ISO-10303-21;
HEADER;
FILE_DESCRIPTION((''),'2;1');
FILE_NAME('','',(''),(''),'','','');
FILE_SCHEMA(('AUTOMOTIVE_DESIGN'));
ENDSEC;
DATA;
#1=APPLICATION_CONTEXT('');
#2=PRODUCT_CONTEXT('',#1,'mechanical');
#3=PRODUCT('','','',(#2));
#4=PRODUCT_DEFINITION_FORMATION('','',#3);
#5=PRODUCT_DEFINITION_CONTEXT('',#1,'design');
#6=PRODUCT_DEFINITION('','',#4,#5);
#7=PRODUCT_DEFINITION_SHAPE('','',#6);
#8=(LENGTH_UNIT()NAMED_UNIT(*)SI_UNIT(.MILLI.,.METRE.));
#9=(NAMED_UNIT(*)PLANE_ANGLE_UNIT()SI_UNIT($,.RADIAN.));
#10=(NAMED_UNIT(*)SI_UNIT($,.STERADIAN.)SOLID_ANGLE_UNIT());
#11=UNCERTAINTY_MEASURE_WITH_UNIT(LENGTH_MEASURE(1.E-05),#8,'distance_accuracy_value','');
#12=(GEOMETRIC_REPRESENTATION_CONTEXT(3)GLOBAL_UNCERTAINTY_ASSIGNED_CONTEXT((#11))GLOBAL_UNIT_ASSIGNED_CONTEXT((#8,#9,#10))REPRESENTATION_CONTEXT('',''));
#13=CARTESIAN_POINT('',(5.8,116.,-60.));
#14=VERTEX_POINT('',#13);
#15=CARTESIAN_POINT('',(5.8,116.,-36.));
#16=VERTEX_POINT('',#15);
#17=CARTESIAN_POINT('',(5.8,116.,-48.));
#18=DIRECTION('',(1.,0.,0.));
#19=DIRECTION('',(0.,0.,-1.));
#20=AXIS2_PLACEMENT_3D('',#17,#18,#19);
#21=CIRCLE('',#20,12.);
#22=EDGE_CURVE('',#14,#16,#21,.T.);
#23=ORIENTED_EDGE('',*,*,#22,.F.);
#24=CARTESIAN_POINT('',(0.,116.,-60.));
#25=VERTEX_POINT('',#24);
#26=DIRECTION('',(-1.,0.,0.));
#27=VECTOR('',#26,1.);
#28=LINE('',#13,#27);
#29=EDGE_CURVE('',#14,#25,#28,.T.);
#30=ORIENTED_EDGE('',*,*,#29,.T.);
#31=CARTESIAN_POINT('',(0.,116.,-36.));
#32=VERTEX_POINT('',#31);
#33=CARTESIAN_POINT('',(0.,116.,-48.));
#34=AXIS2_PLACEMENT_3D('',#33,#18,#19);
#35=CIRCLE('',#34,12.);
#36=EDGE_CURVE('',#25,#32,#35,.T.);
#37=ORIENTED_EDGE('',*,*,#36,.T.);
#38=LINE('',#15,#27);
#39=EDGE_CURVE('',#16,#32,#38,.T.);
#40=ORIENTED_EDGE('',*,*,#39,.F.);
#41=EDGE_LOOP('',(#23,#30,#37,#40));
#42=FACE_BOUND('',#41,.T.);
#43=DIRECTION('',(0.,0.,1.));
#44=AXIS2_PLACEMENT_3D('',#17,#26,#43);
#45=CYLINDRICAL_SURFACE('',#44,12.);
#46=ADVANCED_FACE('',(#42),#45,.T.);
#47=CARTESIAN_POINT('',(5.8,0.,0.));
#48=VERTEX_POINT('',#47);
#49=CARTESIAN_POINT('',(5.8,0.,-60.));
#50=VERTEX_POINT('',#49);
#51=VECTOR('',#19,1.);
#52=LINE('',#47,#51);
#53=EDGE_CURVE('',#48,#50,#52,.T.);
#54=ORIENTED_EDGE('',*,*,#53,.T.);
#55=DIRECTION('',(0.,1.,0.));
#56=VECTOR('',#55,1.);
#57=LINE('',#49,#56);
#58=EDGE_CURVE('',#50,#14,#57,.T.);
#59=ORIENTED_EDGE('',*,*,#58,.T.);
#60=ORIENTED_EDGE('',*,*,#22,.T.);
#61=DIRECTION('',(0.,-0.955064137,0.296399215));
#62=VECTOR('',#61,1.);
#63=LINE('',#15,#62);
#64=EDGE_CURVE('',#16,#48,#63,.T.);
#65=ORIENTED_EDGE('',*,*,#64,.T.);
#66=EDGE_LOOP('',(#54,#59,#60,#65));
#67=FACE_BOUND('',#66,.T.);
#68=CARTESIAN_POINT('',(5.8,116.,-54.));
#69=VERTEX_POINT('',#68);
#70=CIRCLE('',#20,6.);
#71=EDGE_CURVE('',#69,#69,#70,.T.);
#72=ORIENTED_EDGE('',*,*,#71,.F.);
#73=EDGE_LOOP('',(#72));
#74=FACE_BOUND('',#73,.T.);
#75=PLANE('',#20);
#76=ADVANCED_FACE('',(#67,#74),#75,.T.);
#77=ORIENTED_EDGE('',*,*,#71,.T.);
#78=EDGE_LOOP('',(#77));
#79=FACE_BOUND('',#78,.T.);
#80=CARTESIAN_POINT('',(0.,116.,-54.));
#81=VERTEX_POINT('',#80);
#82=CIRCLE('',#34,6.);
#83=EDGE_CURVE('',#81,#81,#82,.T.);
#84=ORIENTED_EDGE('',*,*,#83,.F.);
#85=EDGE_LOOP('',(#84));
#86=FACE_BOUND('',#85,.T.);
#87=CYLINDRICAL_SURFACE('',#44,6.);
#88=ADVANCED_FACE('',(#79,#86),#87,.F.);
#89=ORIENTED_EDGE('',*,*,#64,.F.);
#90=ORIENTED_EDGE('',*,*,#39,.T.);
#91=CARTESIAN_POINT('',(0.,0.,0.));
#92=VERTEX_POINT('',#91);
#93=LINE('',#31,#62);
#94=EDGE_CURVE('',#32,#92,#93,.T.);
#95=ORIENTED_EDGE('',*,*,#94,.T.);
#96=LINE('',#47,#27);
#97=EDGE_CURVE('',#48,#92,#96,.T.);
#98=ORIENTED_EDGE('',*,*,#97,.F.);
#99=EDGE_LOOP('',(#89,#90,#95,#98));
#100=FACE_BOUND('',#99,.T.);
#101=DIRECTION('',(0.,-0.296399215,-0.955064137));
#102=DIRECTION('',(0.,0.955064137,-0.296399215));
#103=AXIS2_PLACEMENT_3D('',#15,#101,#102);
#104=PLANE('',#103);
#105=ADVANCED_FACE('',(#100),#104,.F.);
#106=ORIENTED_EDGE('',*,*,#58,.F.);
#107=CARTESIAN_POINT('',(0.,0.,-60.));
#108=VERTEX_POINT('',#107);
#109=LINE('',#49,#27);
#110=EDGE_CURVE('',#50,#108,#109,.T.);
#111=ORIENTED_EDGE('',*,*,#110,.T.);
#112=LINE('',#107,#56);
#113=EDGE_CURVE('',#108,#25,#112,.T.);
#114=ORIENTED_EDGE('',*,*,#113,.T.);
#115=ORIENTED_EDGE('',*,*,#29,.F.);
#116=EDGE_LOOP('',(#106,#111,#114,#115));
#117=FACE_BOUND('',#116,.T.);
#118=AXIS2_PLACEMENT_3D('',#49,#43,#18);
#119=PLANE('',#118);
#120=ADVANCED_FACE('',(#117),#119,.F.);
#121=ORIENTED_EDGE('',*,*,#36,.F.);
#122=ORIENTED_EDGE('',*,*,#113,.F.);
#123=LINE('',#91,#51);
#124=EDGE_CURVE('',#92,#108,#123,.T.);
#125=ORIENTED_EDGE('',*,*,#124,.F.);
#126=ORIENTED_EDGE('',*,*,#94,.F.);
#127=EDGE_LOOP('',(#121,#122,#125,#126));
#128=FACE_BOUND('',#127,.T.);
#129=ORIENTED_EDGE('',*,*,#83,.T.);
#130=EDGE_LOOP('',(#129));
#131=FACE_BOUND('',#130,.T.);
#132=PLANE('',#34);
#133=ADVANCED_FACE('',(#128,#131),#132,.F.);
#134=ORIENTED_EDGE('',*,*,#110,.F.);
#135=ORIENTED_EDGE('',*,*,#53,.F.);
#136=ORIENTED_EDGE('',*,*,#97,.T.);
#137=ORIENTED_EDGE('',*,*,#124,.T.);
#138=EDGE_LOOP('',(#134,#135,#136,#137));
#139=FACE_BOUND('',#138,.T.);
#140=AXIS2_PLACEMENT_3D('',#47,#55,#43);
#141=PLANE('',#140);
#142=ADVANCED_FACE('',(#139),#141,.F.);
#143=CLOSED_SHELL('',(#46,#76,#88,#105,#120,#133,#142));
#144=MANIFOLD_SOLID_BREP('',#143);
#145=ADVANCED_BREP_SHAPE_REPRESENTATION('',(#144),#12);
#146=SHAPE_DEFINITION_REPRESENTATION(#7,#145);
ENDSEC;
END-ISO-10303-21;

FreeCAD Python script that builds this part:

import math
import FreeCAD as App
import Part
import Sketcher

doc = App.newDocument("Part")
body = doc.addObject("PartDesign::Body", "Body")

# Sketch on YZ plane
sketch1 = doc.addObject("Sketcher::SketchObject", "Sketch")
body.addObject(sketch1)
sketch1.AttachmentSupport = (doc.YZ_Plane, [""])
sketch1.MapMode = "FlatFace"
sketch1.addGeometry(Part.LineSegment(App.Vector(0, 0, 0), App.Vector(0, -60, 0)), False)
sketch1.addGeometry(Part.LineSegment(App.Vector(0, -60, 0), App.Vector(116, -60, 0)), False)
sketch1.addGeometry(Part.ArcOfCircle(Part.Circle(App.Vector(116, -48, 0), App.Vector(0, 0, 1), 12), math.radians(-90), math.radians(90)), False)
sketch1.addGeometry(Part.LineSegment(App.Vector(116, -36, 0), App.Vector(0, 0, 0)), False)
sketch1.addGeometry(Part.Circle(App.Vector(116, -48, 0), App.Vector(0, 0, 1), 6), False)
sketch1.addConstraint(Sketcher.Constraint("Coincident", 0, 2, 1, 1))
sketch1.addConstraint(Sketcher.Constraint("Tangent", 1, 2, 2, 1))
sketch1.addConstraint(Sketcher.Constraint("Coincident", 2, 2, 3, 1))
sketch1.addConstraint(Sketcher.Constraint("Coincident", 3, 2, 0, 1))
sketch1.addConstraint(Sketcher.Constraint("Vertical", 0))
sketch1.addConstraint(Sketcher.Constraint("Horizontal", 1))
sketch1.addConstraint(Sketcher.Constraint("Coincident", 3, 2, -1, 1))
sketch1.addConstraint(Sketcher.Constraint("Coincident", 4, 3, 2, 3))
sketch1.addConstraint(Sketcher.Constraint("Vertical", 1, 2, 2, 2))
sketch1.addConstraint(Sketcher.Constraint("Diameter", 4, 12.0))
sketch1.addConstraint(Sketcher.Constraint("Radius", 2, 12.0))
sketch1.addConstraint(Sketcher.Constraint("DistanceX", 1, 1, 1, 2, 116.0))
sketch1.addConstraint(Sketcher.Constraint("DistanceY", 0, 2, 0, 1, 60.0))
pad1 = doc.addObject("PartDesign::Pad", "Pad")
body.addObject(pad1)
pad1.Profile = sketch1
pad1.Length = 5.8

doc.recompute()
